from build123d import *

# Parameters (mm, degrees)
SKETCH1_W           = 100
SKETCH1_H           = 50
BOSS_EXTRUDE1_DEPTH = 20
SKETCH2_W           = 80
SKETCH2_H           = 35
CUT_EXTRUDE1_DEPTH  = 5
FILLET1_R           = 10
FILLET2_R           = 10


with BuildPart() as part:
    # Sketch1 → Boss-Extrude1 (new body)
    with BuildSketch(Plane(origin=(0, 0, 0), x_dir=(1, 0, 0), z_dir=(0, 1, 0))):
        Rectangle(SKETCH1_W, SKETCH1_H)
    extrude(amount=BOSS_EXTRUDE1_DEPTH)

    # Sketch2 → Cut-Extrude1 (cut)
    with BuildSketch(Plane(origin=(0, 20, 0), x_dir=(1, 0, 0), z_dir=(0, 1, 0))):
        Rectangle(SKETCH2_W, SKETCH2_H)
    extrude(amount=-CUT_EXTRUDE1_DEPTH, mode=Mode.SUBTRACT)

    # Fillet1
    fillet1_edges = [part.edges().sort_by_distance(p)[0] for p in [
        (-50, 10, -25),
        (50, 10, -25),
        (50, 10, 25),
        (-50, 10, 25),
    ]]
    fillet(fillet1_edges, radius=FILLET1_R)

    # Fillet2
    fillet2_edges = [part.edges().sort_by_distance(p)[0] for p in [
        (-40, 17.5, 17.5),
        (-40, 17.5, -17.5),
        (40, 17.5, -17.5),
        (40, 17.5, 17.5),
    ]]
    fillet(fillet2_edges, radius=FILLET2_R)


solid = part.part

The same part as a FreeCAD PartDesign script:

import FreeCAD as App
import Part
import Sketcher
from FreeCAD import Vector


def edges_at(feature, points):
    """Names of the edges that pass closest to the given points."""
    edges = feature.Shape.Edges
    near = lambda p: min(range(len(edges)), key=lambda i: edges[i].distToShape(Part.Vertex(*p))[0])
    return sorted({f"Edge{near(p) + 1}" for p in points})

doc = App.newDocument("Part")
params = doc.addObject("Spreadsheet::Sheet", "Params")
for row, (alias, value) in enumerate([
    ("sketch1_width", "100 mm"),
    ("sketch1_height", "50 mm"),
    ("pad1_length", "20 mm"),
    ("sketch2_width", "80 mm"),
    ("sketch2_height", "35 mm"),
    ("pocket1_length", "5 mm"),
    ("fillet_radius", "10 mm"),
    ("fillet2_radius", "10 mm"),
], start=1):
    params.set(f"A{row}", alias)
    params.set(f"B{row}", "=" + value)
    params.setAlias(f"B{row}", alias)

body = doc.addObject("PartDesign::Body", "Body")

# Sketch on XZ plane
sketch1 = body.newObject("Sketcher::SketchObject", "Sketch")
sketch1.AttachmentSupport = (doc.getObject("XZ_Plane"), [""])
sketch1.MapMode = "FlatFace"
sketch1.addGeometry(Part.LineSegment(Vector(-50, -25, 0), Vector(-50, 25, 0)), False)
sketch1.addGeometry(Part.LineSegment(Vector(-50, 25, 0), Vector(50, 25, 0)), False)
sketch1.addGeometry(Part.LineSegment(Vector(50, 25, 0), Vector(50, -25, 0)), False)
sketch1.addGeometry(Part.LineSegment(Vector(50, -25, 0), Vector(-50, -25, 0)), False)
sketch1.addConstraint(Sketcher.Constraint("Coincident", 0, 2, 1, 1))
sketch1.addConstraint(Sketcher.Constraint("Coincident", 1, 2, 2, 1))
sketch1.addConstraint(Sketcher.Constraint("Coincident", 2, 2, 3, 1))
sketch1.addConstraint(Sketcher.Constraint("Coincident", 3, 2, 0, 1))
sketch1.addConstraint(Sketcher.Constraint("Vertical", 0))
sketch1.addConstraint(Sketcher.Constraint("Horizontal", 1))
sketch1.addConstraint(Sketcher.Constraint("Vertical", 2))
sketch1.addConstraint(Sketcher.Constraint("Horizontal", 3))
sketch1.addConstraint(Sketcher.Constraint("Symmetric", 0, 2, 2, 2, -1, 1))
sketch1.addConstraint(Sketcher.Constraint("DistanceX", 1, 1, 1, 2, 100.0))
sketch1.addConstraint(Sketcher.Constraint("DistanceY", 0, 1, 0, 2, 50.0))
sketch1.setExpression("Constraints[9]", "Params.sketch1_width")
sketch1.setExpression("Constraints[10]", "Params.sketch1_height")
pad1 = body.newObject("PartDesign::Pad", "Pad")
pad1.Profile = sketch1
pad1.setExpression("Length", "Params.pad1_length")
pad1.Reversed = True

# Sketch on XZ plane
sketch2 = body.newObject("Sketcher::SketchObject", "Sketch001")
sketch2.AttachmentSupport = (doc.getObject("XZ_Plane"), [""])
sketch2.MapMode = "FlatFace"
sketch2.AttachmentOffset = App.Placement(Vector(0, 0, -20), App.Rotation())
sketch2.addGeometry(Part.LineSegment(Vector(-40, -18, 0), Vector(-40, 18, 0)), False)
sketch2.addGeometry(Part.LineSegment(Vector(-40, 18, 0), Vector(40, 18, 0)), False)
sketch2.addGeometry(Part.LineSegment(Vector(40, 18, 0), Vector(40, -18, 0)), False)
sketch2.addGeometry(Part.LineSegment(Vector(40, -18, 0), Vector(-40, -18, 0)), False)
sketch2.addConstraint(Sketcher.Constraint("Coincident", 0, 2, 1, 1))
sketch2.addConstraint(Sketcher.Constraint("Coincident", 1, 2, 2, 1))
sketch2.addConstraint(Sketcher.Constraint("Coincident", 2, 2, 3, 1))
sketch2.addConstraint(Sketcher.Constraint("Coincident", 3, 2, 0, 1))
sketch2.addConstraint(Sketcher.Constraint("Vertical", 0))
sketch2.addConstraint(Sketcher.Constraint("Horizontal", 1))
sketch2.addConstraint(Sketcher.Constraint("Vertical", 2))
sketch2.addConstraint(Sketcher.Constraint("Horizontal", 3))
sketch2.addConstraint(Sketcher.Constraint("Symmetric", 0, 2, 2, 2, -1, 1))
sketch2.addConstraint(Sketcher.Constraint("DistanceX", 1, 1, 1, 2, 80.0))
sketch2.addConstraint(Sketcher.Constraint("DistanceY", 0, 1, 0, 2, 35.0))
sketch2.setExpression("Constraints[9]", "Params.sketch2_width")
sketch2.setExpression("Constraints[10]", "Params.sketch2_height")
pocket1 = body.newObject("PartDesign::Pocket", "Pocket")
pocket1.Profile = sketch2
pocket1.setExpression("Length", "Params.pocket1_length")
pocket1.Reversed = True
doc.recompute()

fillet = body.newObject("PartDesign::Fillet", "Fillet")
fillet.Base = (pocket1, edges_at(pocket1, [
    (-50, 10, -25),
    (50, 10, -25),
    (50, 10, 25),
    (-50, 10, 25),
]))
fillet.setExpression("Radius", "Params.fillet_radius")
doc.recompute()

fillet2 = body.newObject("PartDesign::Fillet", "Fillet001")
fillet2.Base = (fillet, edges_at(fillet, [
    (-40, 17.5, 17.5),
    (-40, 17.5, -17.5),
    (40, 17.5, -17.5),
    (40, 17.5, 17.5),
]))
fillet2.setExpression("Radius", "Params.fillet2_radius")

doc.recompute()
